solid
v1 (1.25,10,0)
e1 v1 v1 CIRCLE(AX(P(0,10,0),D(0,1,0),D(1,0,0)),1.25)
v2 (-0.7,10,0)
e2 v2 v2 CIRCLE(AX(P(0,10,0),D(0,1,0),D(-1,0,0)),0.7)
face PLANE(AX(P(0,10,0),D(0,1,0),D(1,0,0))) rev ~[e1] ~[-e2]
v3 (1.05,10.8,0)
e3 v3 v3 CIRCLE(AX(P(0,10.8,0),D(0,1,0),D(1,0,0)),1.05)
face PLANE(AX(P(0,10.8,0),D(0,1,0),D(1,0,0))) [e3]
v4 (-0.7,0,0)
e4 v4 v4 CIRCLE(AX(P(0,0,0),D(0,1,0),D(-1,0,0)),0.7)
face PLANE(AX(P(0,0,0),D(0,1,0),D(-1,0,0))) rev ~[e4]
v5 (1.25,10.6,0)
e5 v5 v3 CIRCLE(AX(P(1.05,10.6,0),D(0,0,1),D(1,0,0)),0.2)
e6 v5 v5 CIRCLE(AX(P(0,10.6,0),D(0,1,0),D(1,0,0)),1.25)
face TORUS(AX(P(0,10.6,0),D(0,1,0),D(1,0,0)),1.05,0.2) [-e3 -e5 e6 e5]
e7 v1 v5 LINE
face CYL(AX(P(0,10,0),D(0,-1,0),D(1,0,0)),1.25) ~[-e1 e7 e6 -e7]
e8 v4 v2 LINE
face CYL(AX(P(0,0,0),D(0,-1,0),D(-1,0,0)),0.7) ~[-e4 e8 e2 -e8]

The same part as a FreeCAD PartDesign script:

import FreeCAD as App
import Part
import Sketcher
from FreeCAD import Vector


def edges_at(feature, points):
    """Names of the edges that pass closest to the given points."""
    edges = feature.Shape.Edges
    near = lambda p: min(range(len(edges)), key=lambda i: edges[i].distToShape(Part.Vertex(*p))[0])
    return sorted({f"Edge{near(p) + 1}" for p in points})

doc = App.newDocument("Part")
params = doc.addObject("Spreadsheet::Sheet", "Params")
for row, (alias, value) in enumerate([
    ("sketch1_diameter", "1.4 mm"),
    ("pad1_length", "10 mm"),
    ("sketch2_diameter", "2.5 mm"),
    ("pad2_length", "0.8 mm"),
    ("fillet_radius", "0.2 mm"),
], start=1):
    params.set(f"A{row}", alias)
    params.set(f"B{row}", "=" + value)
    params.setAlias(f"B{row}", alias)

body = doc.addObject("PartDesign::Body", "Body")

# Sketch on XZ plane
sketch1 = body.newObject("Sketcher::SketchObject", "Sketch")
sketch1.AttachmentSupport = (doc.getObject("XZ_Plane"), [""])
sketch1.MapMode = "FlatFace"
sketch1.addGeometry(Part.Circle(Vector(0, 0, 0), Vector(0, 0, 1), 0.7), False)
sketch1.addConstraint(Sketcher.Constraint("Coincident", 0, 3, -1, 1))
sketch1.addConstraint(Sketcher.Constraint("Diameter", 0, 1.4))
sketch1.setExpression("Constraints[1]", "Params.sketch1_diameter")
pad1 = body.newObject("PartDesign::Pad", "Pad")
pad1.Profile = sketch1
pad1.setExpression("Length", "Params.pad1_length")
pad1.Reversed = True

# Sketch on XZ plane
sketch2 = body.newObject("Sketcher::SketchObject", "Sketch001")
sketch2.AttachmentSupport = (doc.getObject("XZ_Plane"), [""])
sketch2.MapMode = "FlatFace"
sketch2.AttachmentOffset = App.Placement(Vector(0, 0, -10), App.Rotation())
sketch2.addGeometry(Part.Circle(Vector(0, 0, 0), Vector(0, 0, 1), 1.2), False)
sketch2.addConstraint(Sketcher.Constraint("Coincident", 0, 3, -1, 1))
sketch2.addConstraint(Sketcher.Constraint("Diameter", 0, 2.5))
sketch2.setExpression("Constraints[1]", "Params.sketch2_diameter")
pad2 = body.newObject("PartDesign::Pad", "Pad001")
pad2.Profile = sketch2
pad2.setExpression("Length", "Params.pad2_length")
pad2.Reversed = True
doc.recompute()

fillet = body.newObject("PartDesign::Fillet", "Fillet")
fillet.Base = (pad2, edges_at(pad2, [(-1.25, 10.8, 0)]))
fillet.setExpression("Radius", "Params.fillet_radius")

doc.recompute()
